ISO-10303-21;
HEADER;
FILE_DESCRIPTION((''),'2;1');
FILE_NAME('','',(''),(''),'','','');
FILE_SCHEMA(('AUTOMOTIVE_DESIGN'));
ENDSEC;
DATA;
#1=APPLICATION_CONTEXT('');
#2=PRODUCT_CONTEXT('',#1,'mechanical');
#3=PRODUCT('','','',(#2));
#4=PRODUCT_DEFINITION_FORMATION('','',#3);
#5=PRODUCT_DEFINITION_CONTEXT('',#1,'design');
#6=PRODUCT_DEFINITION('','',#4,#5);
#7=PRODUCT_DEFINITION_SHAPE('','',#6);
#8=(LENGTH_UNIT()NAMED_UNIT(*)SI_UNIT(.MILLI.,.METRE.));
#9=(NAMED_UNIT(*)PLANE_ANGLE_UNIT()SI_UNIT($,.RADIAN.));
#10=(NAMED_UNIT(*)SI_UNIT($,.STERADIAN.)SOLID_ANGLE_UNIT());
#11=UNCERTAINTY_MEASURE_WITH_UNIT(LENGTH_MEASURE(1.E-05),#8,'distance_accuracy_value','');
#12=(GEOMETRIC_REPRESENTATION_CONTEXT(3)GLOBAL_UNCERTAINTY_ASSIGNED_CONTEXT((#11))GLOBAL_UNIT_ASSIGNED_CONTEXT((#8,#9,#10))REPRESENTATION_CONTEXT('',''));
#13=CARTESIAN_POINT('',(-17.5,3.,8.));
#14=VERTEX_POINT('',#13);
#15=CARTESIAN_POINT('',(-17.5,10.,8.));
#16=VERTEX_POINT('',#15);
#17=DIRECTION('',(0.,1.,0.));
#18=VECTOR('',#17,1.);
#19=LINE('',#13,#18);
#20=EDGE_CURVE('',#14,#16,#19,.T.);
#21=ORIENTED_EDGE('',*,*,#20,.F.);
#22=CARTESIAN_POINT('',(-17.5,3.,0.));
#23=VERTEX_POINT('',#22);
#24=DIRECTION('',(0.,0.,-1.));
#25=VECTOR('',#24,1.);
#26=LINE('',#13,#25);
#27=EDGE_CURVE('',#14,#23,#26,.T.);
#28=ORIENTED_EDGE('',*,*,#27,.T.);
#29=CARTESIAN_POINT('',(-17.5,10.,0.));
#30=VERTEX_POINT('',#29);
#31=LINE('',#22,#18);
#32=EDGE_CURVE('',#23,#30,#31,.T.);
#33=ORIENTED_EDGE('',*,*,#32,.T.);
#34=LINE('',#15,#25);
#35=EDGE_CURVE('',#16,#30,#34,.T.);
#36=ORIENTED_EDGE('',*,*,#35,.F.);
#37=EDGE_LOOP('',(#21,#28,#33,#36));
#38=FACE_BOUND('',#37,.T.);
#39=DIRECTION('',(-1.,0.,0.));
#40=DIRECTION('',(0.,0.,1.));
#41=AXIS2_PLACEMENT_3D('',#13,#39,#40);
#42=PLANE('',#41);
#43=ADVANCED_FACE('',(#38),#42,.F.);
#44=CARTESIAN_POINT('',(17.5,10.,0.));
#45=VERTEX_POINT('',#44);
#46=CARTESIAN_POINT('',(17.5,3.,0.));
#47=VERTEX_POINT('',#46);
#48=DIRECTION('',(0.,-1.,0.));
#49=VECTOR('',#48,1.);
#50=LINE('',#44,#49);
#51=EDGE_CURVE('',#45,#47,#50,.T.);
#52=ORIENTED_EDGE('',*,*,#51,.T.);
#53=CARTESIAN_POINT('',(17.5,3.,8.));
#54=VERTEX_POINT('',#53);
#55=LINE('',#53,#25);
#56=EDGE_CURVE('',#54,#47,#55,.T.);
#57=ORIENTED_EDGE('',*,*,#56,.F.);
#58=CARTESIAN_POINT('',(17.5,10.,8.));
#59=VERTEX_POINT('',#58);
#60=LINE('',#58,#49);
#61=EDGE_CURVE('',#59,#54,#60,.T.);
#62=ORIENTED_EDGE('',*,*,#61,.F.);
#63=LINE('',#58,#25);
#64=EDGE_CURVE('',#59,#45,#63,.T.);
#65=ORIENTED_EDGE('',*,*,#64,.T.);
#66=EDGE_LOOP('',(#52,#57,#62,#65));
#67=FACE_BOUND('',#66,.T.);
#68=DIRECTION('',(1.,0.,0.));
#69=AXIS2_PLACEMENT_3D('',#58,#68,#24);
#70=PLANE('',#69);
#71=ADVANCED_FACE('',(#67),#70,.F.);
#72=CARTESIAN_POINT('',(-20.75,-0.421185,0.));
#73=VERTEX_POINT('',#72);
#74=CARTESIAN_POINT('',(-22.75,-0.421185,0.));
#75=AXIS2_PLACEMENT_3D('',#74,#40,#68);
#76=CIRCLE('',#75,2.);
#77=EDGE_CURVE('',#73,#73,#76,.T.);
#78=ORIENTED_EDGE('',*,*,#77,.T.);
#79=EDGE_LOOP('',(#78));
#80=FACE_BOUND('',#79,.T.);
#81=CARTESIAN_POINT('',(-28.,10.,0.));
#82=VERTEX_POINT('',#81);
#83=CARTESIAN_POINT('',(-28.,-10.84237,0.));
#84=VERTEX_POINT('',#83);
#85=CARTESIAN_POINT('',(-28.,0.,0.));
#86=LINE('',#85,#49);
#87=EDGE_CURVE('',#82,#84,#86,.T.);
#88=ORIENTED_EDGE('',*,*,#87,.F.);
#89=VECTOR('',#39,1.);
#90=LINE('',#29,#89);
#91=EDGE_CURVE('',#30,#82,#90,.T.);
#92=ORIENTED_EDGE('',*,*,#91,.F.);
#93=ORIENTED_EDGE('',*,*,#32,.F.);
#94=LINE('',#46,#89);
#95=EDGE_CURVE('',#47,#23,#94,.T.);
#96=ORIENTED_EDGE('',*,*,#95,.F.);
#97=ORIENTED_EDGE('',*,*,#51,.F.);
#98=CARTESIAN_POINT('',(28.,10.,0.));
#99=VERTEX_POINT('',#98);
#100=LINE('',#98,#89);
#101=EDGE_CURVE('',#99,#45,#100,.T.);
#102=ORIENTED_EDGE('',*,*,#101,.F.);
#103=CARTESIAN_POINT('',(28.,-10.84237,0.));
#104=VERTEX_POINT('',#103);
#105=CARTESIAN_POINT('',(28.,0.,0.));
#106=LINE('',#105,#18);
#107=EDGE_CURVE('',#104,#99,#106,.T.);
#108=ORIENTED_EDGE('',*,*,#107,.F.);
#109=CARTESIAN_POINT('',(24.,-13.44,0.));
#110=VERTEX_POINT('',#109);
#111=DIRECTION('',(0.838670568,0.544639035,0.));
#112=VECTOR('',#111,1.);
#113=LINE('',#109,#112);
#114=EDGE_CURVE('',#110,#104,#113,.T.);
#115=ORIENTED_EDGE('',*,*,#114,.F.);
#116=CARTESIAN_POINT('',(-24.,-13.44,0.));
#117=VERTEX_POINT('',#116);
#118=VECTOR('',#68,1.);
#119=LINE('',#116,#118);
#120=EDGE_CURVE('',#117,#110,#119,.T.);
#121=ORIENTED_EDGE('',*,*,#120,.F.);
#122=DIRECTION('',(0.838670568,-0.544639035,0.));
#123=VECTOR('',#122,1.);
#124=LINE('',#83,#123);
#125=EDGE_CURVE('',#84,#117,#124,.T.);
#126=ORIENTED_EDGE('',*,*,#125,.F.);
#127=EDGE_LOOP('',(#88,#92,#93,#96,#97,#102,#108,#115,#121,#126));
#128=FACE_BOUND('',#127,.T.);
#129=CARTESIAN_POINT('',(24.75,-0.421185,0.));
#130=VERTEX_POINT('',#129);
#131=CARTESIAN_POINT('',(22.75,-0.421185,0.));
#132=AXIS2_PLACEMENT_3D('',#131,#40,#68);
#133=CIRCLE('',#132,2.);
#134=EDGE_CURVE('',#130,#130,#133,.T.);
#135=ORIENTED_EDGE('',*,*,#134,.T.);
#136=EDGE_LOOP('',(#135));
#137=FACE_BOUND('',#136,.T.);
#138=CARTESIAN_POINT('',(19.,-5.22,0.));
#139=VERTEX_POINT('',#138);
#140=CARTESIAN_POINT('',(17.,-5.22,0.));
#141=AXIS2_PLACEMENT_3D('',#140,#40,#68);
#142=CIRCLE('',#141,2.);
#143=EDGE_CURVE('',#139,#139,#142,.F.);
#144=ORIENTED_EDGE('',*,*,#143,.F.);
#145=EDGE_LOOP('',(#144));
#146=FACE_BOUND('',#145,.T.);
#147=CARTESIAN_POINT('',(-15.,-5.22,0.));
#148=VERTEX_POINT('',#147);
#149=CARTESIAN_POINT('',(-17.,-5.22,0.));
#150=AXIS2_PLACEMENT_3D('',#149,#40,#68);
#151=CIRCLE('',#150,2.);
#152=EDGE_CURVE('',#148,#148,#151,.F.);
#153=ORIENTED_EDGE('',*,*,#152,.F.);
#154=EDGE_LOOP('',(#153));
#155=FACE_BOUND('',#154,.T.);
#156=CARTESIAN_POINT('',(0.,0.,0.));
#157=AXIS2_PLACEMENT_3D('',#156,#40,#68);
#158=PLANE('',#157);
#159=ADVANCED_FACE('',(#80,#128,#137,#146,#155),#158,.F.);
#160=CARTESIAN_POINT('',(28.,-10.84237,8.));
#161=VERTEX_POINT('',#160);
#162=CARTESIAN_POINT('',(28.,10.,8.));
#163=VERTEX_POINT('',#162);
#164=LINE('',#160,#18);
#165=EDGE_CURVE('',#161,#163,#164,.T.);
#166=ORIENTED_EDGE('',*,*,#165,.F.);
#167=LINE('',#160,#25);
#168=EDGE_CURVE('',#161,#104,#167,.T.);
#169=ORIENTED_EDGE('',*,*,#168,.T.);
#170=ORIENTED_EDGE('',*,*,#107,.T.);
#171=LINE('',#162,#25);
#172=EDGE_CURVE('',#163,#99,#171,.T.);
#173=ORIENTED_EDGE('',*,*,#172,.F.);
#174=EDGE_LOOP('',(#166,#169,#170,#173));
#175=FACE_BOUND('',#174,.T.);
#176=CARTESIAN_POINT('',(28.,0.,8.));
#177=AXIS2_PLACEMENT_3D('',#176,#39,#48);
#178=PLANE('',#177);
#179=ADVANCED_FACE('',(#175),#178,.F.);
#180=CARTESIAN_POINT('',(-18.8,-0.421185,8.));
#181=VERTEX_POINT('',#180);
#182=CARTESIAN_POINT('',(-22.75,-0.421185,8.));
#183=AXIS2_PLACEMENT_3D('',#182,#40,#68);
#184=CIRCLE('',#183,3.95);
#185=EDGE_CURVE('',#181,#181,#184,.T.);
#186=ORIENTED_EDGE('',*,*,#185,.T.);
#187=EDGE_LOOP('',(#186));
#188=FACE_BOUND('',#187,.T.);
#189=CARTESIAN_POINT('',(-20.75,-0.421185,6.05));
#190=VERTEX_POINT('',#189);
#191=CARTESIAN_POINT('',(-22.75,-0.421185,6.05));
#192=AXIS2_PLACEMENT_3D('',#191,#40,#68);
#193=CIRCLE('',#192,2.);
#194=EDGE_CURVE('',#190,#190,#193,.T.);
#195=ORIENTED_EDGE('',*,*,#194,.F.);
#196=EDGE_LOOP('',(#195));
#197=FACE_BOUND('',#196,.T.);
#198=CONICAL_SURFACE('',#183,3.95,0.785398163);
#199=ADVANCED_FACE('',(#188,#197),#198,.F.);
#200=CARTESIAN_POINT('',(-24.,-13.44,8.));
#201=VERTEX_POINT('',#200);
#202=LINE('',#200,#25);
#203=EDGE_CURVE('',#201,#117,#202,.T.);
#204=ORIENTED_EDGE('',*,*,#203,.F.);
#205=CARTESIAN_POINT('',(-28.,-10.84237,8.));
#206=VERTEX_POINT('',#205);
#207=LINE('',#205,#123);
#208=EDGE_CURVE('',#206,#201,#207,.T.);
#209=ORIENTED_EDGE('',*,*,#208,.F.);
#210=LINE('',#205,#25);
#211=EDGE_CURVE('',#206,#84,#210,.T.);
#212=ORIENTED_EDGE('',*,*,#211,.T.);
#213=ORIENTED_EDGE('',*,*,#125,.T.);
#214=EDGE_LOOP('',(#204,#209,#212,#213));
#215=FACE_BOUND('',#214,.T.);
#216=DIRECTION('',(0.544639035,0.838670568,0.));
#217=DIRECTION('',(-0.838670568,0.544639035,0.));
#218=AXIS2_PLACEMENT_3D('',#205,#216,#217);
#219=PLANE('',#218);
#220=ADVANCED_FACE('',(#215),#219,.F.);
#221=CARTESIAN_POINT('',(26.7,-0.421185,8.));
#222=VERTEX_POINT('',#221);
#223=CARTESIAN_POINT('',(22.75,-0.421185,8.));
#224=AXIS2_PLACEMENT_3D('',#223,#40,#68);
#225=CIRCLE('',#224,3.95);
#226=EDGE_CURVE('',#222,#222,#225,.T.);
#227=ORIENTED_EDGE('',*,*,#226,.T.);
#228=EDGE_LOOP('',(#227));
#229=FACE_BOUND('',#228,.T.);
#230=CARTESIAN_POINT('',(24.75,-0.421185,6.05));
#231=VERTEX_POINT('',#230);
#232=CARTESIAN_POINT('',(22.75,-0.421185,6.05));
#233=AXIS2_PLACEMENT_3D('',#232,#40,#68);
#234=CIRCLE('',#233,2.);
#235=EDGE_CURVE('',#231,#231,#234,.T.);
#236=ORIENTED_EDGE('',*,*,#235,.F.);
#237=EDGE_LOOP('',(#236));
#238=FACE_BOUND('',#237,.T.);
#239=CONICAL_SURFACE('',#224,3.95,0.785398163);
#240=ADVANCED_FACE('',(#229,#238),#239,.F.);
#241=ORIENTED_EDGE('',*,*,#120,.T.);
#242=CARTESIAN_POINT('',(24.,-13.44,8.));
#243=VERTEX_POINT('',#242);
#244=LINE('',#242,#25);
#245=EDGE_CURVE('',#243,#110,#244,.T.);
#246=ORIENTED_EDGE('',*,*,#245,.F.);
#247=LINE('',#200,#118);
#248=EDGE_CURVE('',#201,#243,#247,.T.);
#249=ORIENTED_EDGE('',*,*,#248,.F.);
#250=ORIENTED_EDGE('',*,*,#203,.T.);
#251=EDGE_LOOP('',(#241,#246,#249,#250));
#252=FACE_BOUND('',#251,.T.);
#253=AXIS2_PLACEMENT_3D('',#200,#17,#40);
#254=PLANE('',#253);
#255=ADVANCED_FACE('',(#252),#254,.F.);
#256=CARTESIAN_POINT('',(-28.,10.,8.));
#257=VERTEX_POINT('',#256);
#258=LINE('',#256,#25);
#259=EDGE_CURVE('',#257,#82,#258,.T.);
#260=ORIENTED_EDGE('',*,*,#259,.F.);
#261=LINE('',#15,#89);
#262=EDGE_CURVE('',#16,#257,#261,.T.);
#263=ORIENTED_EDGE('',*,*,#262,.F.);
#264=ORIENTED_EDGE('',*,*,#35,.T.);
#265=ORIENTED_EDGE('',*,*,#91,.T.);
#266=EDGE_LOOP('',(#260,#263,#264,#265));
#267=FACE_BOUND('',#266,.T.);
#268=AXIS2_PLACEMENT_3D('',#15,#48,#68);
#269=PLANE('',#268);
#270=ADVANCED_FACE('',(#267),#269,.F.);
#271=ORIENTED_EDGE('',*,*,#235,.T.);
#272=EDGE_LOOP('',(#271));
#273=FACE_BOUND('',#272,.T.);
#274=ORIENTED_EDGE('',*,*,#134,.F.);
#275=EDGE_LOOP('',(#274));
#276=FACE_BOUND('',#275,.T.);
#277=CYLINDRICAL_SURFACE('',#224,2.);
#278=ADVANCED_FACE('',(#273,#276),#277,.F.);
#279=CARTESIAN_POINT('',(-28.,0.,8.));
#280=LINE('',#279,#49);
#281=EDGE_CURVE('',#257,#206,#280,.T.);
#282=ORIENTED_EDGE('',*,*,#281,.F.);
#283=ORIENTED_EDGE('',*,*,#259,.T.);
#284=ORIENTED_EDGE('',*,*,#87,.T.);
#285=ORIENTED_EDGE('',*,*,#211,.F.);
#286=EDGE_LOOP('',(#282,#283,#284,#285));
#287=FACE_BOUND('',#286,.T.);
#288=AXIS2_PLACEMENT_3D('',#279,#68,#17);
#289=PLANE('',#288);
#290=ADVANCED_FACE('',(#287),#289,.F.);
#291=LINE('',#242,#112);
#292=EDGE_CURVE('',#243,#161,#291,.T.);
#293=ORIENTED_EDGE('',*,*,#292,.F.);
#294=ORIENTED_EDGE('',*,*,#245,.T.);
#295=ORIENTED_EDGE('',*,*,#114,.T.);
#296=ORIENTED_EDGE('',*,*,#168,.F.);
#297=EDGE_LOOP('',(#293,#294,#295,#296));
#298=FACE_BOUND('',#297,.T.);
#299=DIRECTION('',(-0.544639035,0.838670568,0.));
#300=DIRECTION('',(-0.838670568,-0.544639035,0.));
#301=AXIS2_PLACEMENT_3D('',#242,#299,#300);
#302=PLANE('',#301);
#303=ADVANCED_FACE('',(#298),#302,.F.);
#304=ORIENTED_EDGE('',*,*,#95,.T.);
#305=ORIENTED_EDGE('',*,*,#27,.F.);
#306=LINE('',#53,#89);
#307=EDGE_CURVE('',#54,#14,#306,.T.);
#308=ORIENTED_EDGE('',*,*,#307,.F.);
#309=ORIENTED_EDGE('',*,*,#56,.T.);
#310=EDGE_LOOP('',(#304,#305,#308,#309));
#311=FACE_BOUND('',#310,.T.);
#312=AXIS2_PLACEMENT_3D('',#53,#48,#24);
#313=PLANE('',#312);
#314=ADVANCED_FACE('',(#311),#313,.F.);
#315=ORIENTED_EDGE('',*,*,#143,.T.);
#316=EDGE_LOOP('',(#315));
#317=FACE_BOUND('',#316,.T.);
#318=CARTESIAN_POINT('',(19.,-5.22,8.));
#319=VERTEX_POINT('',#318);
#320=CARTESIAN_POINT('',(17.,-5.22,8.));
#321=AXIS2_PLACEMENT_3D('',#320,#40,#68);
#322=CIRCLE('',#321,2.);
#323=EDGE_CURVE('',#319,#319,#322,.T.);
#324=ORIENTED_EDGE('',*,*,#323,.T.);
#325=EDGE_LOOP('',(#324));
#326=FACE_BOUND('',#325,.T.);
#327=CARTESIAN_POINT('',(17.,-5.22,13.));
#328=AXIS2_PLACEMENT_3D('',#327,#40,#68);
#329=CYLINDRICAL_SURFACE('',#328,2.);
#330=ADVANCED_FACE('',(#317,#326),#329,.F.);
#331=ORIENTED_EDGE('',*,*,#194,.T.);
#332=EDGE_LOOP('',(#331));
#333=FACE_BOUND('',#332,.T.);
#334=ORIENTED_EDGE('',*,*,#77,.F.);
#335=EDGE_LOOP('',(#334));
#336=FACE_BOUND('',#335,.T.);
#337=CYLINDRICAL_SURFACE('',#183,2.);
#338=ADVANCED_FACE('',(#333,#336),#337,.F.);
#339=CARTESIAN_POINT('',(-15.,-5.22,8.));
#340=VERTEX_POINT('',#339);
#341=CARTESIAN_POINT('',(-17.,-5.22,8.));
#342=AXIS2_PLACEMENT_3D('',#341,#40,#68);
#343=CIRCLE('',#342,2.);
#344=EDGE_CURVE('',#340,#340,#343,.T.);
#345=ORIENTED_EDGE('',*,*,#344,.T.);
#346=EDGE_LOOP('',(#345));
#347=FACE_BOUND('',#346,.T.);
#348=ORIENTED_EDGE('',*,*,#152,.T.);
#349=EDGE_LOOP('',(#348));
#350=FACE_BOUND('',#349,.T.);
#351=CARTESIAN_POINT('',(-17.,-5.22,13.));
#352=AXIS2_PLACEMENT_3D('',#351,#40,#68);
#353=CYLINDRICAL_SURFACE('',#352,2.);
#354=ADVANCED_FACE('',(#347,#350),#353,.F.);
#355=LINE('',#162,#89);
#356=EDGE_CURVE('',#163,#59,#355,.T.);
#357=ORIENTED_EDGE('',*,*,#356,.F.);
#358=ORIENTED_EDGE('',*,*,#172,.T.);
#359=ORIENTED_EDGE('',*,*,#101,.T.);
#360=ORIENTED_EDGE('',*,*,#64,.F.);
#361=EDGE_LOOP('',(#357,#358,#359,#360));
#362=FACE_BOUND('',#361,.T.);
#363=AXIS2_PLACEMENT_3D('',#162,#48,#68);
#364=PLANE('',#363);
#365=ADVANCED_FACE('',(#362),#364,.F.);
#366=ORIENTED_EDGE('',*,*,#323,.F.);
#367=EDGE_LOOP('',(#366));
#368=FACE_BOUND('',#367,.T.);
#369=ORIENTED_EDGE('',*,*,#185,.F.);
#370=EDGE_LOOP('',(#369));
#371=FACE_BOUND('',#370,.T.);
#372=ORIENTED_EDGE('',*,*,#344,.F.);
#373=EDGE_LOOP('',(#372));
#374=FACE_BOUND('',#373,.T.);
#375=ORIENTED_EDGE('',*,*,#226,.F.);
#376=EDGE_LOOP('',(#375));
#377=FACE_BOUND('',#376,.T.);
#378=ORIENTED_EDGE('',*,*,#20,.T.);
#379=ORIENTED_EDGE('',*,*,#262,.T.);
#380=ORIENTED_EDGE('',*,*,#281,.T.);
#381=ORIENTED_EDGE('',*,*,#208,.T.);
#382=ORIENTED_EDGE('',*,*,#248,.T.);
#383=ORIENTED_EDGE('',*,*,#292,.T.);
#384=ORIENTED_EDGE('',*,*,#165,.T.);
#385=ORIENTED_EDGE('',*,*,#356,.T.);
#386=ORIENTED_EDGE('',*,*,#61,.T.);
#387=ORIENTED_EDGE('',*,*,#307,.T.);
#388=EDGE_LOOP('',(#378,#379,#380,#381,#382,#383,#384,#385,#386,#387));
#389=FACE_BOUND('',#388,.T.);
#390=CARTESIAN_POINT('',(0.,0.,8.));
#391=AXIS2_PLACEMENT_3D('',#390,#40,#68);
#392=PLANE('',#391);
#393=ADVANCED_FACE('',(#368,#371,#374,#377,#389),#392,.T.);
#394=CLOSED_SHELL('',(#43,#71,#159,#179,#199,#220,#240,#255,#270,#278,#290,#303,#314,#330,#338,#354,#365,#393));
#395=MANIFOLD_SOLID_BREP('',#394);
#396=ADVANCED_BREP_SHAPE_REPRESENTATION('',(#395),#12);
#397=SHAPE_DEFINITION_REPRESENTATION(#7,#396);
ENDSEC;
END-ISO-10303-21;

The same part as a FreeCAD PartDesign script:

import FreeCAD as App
import Part
import Sketcher
from FreeCAD import Vector
Q = App.Units.Quantity


def add_polygon(sketch, points):
    """Adds a closed chain of lines whose ends are joined by coincident constraints."""
    first, n = sketch.GeometryCount, len(points)
    for a, b in zip(points, points[1:] + points[:1]):
        sketch.addGeometry(Part.LineSegment(App.Vector(*a, 0), App.Vector(*b, 0)), False)
    for i in range(n):
        sketch.addConstraint(Sketcher.Constraint("Coincident", first + i, 2, first + (i + 1) % n, 1))

doc = App.newDocument("Part")
body = doc.addObject("PartDesign::Body", "Body")

# Sketch on XY plane
sketch1 = body.newObject("Sketcher::SketchObject", "Sketch")
sketch1.AttachmentSupport = (doc.getObject("XY_Plane"), [""])
sketch1.MapMode = "FlatFace"
add_polygon(sketch1, [(28, 10), (17.5, 10), (17.5, 3), (-17.5, 3), (-17.5, 10), (-28, 10), (-28, -10.84237), (-24, -13.44), (24, -13.44), (28, -10.84237)])  # lines 0-9
sketch1.addConstraint([
    Sketcher.Constraint("Horizontal", 0),
    Sketcher.Constraint("Vertical", 1),
    Sketcher.Constraint("Horizontal", 2),
    Sketcher.Constraint("Vertical", 3),
    Sketcher.Constraint("Horizontal", 4),
    Sketcher.Constraint("Vertical", 5),
    Sketcher.Constraint("Horizontal", 7),
    Sketcher.Constraint("Vertical", 9),
    Sketcher.Constraint("Symmetric", 0, 2, 3, 2, -2),
    Sketcher.Constraint("Symmetric", 5, 2, 8, 2, -2),
    Sketcher.Constraint("Equal", 6, 8),
    Sketcher.Constraint("DistanceX", 2, 2, 2, 1, 35.0),
    Sketcher.Constraint("DistanceX", 7, 1, 7, 2, 48.0),
    Sketcher.Constraint("DistanceY", 1, 2, 1, 1, 7.0),
    Sketcher.Constraint("Angle", 6, Q("-33 deg")),
    Sketcher.Constraint("DistanceX", 0, 2, 0, 1, 10.5),
    Sketcher.Constraint("DistanceY", -1, 1, 0, 2, 10.0),
    Sketcher.Constraint("DistanceY", 6, 2, -1, 1, 13.44),
])
pad1 = body.newObject("PartDesign::Pad", "Pad")
pad1.Profile = sketch1
pad1.Length = 8

# Sketch on XY plane
sketch2 = body.newObject("Sketcher::SketchObject", "Sketch001")
sketch2.AttachmentSupport = (doc.getObject("XY_Plane"), [""])
sketch2.MapMode = "FlatFace"
sketch2.AttachmentOffset = App.Placement(Vector(0, 0, 13), App.Rotation())
sketch2.addGeometry([
    Part.Circle(Vector(-17, -5.22, 0), Vector(0, 0, 1), 2),
    Part.Circle(Vector(17, -5.22, 0), Vector(0, 0, 1), 2),
], False)
sketch2.addConstraint([
    Sketcher.Constraint("Equal", 0, 1),
    Sketcher.Constraint("Symmetric", 0, 3, 1, 3, -2),
    Sketcher.Constraint("Diameter", 0, 4.0),
    Sketcher.Constraint("DistanceX", 0, 3, -1, 1, 17.0),
    Sketcher.Constraint("DistanceY", 0, 3, -1, 1, 5.22),
])
doc.recompute()
hole = body.newObject("PartDesign::Hole", "Hole")
hole.Profile = sketch2
hole.ThreadType = "None"
hole.Diameter = 4
hole.DepthType = "Dimension"
hole.Depth = 13
hole.DrillPoint = "Angled"
hole.DrillPointAngle = 118
hole.HoleCutType = "Countersink"
hole.HoleCutDiameter = 7.9
hole.HoleCutCountersinkAngle = 90

# Sketch on XY plane
sketch3 = body.newObject("Sketcher::SketchObject", "Sketch002")
sketch3.AttachmentSupport = (doc.getObject("XY_Plane"), [""])
sketch3.MapMode = "FlatFace"
sketch3.AttachmentOffset = App.Placement(Vector(0, 0, 8), App.Rotation())
sketch3.addGeometry([
    Part.Circle(Vector(-22.75, -0.421185, 0), Vector(0, 0, 1), 2),
    Part.Circle(Vector(22.75, -0.421185, 0), Vector(0, 0, 1), 2),
], False)
sketch3.addConstraint([
    Sketcher.Constraint("Equal", 0, 1),
    Sketcher.Constraint("Symmetric", 0, 3, 1, 3, -2),
    Sketcher.Constraint("Diameter", 0, 4.0),
    Sketcher.Constraint("DistanceX", 0, 3, 1, 3, 45.5),
    Sketcher.Constraint("DistanceY", 0, 3, -1, 1, 0.421185),
])
doc.recompute()
hole2 = body.newObject("PartDesign::Hole", "Hole001")
hole2.Profile = sketch3
hole2.ThreadType = "None"
hole2.Diameter = 4
hole2.DepthType = "Dimension"
hole2.Depth = 16
hole2.DrillPoint = "Angled"
hole2.DrillPointAngle = 118
hole2.HoleCutType = "Countersink"
hole2.HoleCutDiameter = 7.9
hole2.HoleCutCountersinkAngle = 90

doc.recompute()
